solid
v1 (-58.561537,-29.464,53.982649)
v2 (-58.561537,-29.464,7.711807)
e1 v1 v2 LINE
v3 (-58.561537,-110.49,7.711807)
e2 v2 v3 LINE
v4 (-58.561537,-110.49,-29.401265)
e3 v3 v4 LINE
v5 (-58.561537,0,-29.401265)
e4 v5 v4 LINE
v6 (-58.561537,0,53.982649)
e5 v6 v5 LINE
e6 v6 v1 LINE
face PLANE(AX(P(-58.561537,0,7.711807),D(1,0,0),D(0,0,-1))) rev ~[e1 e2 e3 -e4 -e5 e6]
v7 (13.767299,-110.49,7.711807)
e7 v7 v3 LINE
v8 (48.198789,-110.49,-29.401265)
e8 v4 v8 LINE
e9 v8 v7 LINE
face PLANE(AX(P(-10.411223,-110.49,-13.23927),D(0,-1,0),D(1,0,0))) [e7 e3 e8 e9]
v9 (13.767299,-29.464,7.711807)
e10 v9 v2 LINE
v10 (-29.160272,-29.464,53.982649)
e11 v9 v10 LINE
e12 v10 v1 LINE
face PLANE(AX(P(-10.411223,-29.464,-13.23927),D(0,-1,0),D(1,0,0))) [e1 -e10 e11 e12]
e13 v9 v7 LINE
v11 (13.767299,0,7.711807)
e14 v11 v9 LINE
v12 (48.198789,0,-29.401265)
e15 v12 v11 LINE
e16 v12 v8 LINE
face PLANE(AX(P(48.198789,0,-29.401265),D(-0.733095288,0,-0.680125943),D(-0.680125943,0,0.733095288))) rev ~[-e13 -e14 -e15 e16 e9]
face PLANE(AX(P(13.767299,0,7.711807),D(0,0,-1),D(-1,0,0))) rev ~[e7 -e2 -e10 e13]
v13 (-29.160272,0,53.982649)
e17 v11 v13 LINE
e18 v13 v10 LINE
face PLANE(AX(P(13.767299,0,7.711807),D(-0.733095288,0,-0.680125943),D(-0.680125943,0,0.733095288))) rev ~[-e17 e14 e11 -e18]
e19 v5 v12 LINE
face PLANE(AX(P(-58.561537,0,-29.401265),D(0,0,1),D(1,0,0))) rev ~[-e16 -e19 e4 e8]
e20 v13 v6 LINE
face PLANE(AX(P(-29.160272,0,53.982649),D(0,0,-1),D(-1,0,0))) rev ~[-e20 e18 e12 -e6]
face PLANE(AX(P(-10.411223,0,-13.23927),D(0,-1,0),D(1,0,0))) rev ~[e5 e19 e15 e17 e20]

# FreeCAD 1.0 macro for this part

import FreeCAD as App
import Part
import Sketcher
from FreeCAD import Vector
Q = App.Units.Quantity

doc = App.newDocument("Part")
params = doc.addObject("Spreadsheet::Sheet", "Params")
for row, (alias, value) in enumerate([
    ("pad1_length", "4.35 in"),
    ("pad2_length", "1.16 in"),
], start=1):
    params.set(f"A{row}", alias)
    params.set(f"B{row}", "=" + value)
    params.setAlias(f"B{row}", alias)

body = doc.addObject("PartDesign::Body", "Body")

sketch1 = doc.addObject("Sketcher::SketchObject", "Sketch")
body.addObject(sketch1)
sketch1.AttachmentSupport = (doc.XZ_Plane, [""])
sketch1.MapMode = "FlatFace"
sketch1.addGeometry([
    Part.LineSegment(Vector(-59, 8, 0), Vector(-59, -29, 0)),
    Part.LineSegment(Vector(-59, -29, 0), Vector(48, -29, 0)),
    Part.LineSegment(Vector(48, -29, 0), Vector(14, 8, 0)),
    Part.LineSegment(Vector(14, 8, 0), Vector(-59, 8, 0)),
], False)
sketch1.addConstraint([
    Sketcher.Constraint("Coincident", 0, 2, 1, 1),
    Sketcher.Constraint("Coincident", 1, 2, 2, 1),
    Sketcher.Constraint("Coincident", 2, 2, 3, 1),
    Sketcher.Constraint("Coincident", 3, 2, 0, 1),
    Sketcher.Constraint("Vertical", 0),
    Sketcher.Constraint("Horizontal", 1),
    Sketcher.Constraint("Horizontal", 3),
    Sketcher.Constraint("DistanceX", -1, 1, 2, 2, Q("13.767299 mm")),
    Sketcher.Constraint("DistanceX", 1, 1, 1, 2, Q("106.760326 mm")),
    Sketcher.Constraint("DistanceX", 3, 2, 3, 1, Q("72.328836 mm")),
    Sketcher.Constraint("DistanceY", 0, 2, 0, 1, Q("37.113072 mm")),
    Sketcher.Constraint("DistanceY", 0, 2, -1, 1, Q("29.401265 mm")),
])
pad1 = doc.addObject("PartDesign::Pad", "Pad")
body.addObject(pad1)
pad1.Profile = sketch1
pad1.setExpression("Length", "Params.pad1_length")

sketch2 = doc.addObject("Sketcher::SketchObject", "Sketch001")
body.addObject(sketch2)
sketch2.AttachmentSupport = (doc.XZ_Plane, [""])
sketch2.MapMode = "FlatFace"
sketch2.addGeometry([
    Part.LineSegment(Vector(-59, -29, 0), Vector(48, -29, 0)),
    Part.LineSegment(Vector(48, -29, 0), Vector(14, 8, 0)),
    Part.LineSegment(Vector(14, 8, 0), Vector(-29, 54, 0)),
    Part.LineSegment(Vector(-29, 54, 0), Vector(-59, 54, 0)),
    Part.LineSegment(Vector(-59, 54, 0), Vector(-59, -29, 0)),
], False)
sketch2.addConstraint([
    Sketcher.Constraint("Coincident", 0, 2, 1, 1),
    Sketcher.Constraint("Coincident", 1, 2, 2, 1),
    Sketcher.Constraint("Coincident", 2, 2, 3, 1),
    Sketcher.Constraint("Coincident", 3, 2, 4, 1),
    Sketcher.Constraint("Coincident", 4, 2, 0, 1),
    Sketcher.Constraint("Horizontal", 0),
    Sketcher.Constraint("Horizontal", 3),
    Sketcher.Constraint("Vertical", 4),
    Sketcher.Constraint("Parallel", 1, 2),
    Sketcher.Constraint("DistanceX", -1, 1, 1, 2, Q("13.767299 mm")),
    Sketcher.Constraint("Distance", 2, Q("63.117091 mm")),
    Sketcher.Constraint("DistanceX", 0, 1, 0, 2, Q("106.760326 mm")),
    Sketcher.Constraint("DistanceX", 3, 2, 3, 1, Q("29.401265 mm")),
    Sketcher.Constraint("DistanceY", 4, 2, 4, 1, Q("83.383914 mm")),
    Sketcher.Constraint("DistanceY", -1, 1, 2, 2, Q("53.982649 mm")),
])
pad2 = doc.addObject("PartDesign::Pad", "Pad001")
body.addObject(pad2)
pad2.Profile = sketch2
pad2.setExpression("Length", "Params.pad2_length")

doc.recompute()
